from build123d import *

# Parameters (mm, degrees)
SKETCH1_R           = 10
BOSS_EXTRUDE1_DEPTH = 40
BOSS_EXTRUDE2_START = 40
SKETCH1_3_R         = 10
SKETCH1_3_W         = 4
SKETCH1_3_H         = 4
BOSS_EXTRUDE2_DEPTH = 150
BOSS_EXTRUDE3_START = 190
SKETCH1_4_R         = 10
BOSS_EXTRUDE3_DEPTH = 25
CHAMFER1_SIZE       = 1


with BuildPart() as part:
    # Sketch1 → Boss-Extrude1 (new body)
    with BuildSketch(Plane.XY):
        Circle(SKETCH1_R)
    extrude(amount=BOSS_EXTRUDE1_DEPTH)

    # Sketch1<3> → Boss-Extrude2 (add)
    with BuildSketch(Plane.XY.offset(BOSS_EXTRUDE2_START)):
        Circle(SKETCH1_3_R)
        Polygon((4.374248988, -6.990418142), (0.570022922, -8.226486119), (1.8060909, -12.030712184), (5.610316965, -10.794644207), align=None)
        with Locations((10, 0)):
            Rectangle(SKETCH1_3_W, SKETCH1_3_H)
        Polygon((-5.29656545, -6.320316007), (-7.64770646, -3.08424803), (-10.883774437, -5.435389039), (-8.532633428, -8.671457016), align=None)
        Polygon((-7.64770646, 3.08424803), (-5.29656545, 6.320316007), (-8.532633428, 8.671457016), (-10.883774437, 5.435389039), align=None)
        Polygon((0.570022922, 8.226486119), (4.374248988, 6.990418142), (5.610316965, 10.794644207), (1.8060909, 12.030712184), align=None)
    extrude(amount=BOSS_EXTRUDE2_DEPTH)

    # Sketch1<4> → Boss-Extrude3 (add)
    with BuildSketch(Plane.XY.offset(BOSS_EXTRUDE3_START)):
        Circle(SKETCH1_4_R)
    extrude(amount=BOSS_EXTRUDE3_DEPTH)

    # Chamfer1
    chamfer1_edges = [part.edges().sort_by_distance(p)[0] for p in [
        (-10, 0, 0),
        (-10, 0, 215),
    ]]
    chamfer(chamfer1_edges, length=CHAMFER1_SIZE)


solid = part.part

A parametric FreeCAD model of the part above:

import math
import FreeCAD as App
import Part
import Sketcher
Q = App.Units.Quantity


def edges_at(feature, points):
    """Names of the edges that pass closest to the given points."""
    edges = feature.Shape.Edges
    near = lambda p: min(range(len(edges)), key=lambda i: edges[i].distToShape(Part.Vertex(*p))[0])
    return sorted({f"Edge{near(p) + 1}" for p in points})

doc = App.newDocument("Part")
params = doc.addObject("Spreadsheet::Sheet", "Params")
for row, (alias, value) in enumerate([
    ("sketch1_diameter", "20 mm"),
    ("pad1_length", "40 mm"),
    ("sketch2_radius", "10 mm"),
    ("sketch2_height", "4 mm"),
    ("sketch2_length", "4 mm"),
    ("pad2_length", "150 mm"),
    ("sketch3_diameter", "20 mm"),
    ("pad3_length", "25 mm"),
    ("chamfer_size", "1 mm"),
], start=1):
    params.set(f"A{row}", alias)
    params.set(f"B{row}", "=" + value)
    params.setAlias(f"B{row}", alias)

body = doc.addObject("PartDesign::Body", "Body")

sketch1 = doc.addObject("Sketcher::SketchObject", "Sketch")
body.addObject(sketch1)
sketch1.AttachmentSupport = (doc.XY_Plane, [""])
sketch1.MapMode = "FlatFace"
sketch1.addGeometry(Part.Circle(App.Vector(0, 0, 0), App.Vector(0, 0, 1), 10), False)
sketch1.addConstraint([
    Sketcher.Constraint("Coincident", 0, 3, -1, 1),
    Sketcher.Constraint("Diameter", 0, Q("20 mm")),
])
sketch1.setExpression("Constraints[1]", "Params.sketch1_diameter")
pad1 = doc.addObject("PartDesign::Pad", "Pad")
body.addObject(pad1)
pad1.Profile = sketch1
pad1.setExpression("Length", "Params.pad1_length")

sketch2 = doc.addObject("Sketcher::SketchObject", "Sketch001")
body.addObject(sketch2)
sketch2.AttachmentSupport = (doc.XY_Plane, [""])
sketch2.MapMode = "FlatFace"
sketch2.AttachmentOffset = App.Placement(App.Vector(0, 0, 40), App.Rotation())
sketch2.addGeometry([
    Part.ArcOfCircle(Part.Circle(App.Vector(0, 0, 0), App.Vector(0, 0, 1), 10), math.radians(-132), math.radians(-84)),
    Part.LineSegment(App.Vector(1.1, -9.9, 0), App.Vector(1.8, -12, 0)),
    Part.LineSegment(App.Vector(1.8, -12, 0), App.Vector(5.6, -10.8, 0)),
    Part.LineSegment(App.Vector(5.6, -10.8, 0), App.Vector(4.9, -8.7, 0)),
    Part.ArcOfCircle(Part.Circle(App.Vector(0, 0, 0), App.Vector(0, 0, 1), 10), math.radians(-60), math.radians(-12)),
    Part.LineSegment(App.Vector(9.8, -2, 0), App.Vector(12, -2, 0)),
    Part.LineSegment(App.Vector(12, -2, 0), App.Vector(12, 2, 0)),
    Part.LineSegment(App.Vector(12, 2, 0), App.Vector(9.8, 2, 0)),
    Part.ArcOfCircle(Part.Circle(App.Vector(0, 0, 0), App.Vector(0, 0, 1), 10), math.radians(12), math.radians(60)),
    Part.LineSegment(App.Vector(4.9, 8.7, 0), App.Vector(5.6, 10.8, 0)),
    Part.LineSegment(App.Vector(5.6, 10.8, 0), App.Vector(1.8, 12, 0)),
    Part.LineSegment(App.Vector(1.8, 12, 0), App.Vector(1.1, 9.9, 0)),
    Part.ArcOfCircle(Part.Circle(App.Vector(0, 0, 0), App.Vector(0, 0, 1), 10), math.radians(84), math.radians(132)),
    Part.LineSegment(App.Vector(-6.8, 7.4, 0), App.Vector(-8.5, 8.7, 0)),
    Part.LineSegment(App.Vector(-8.5, 8.7, 0), App.Vector(-10.9, 5.4, 0)),
    Part.LineSegment(App.Vector(-10.9, 5.4, 0), App.Vector(-9.1, 4.1, 0)),
    Part.ArcOfCircle(Part.Circle(App.Vector(0, 0, 0), App.Vector(0, 0, 1), 10), math.radians(156), math.radians(204)),
    Part.LineSegment(App.Vector(-9.1, -4.1, 0), App.Vector(-10.9, -5.4, 0)),
    Part.LineSegment(App.Vector(-10.9, -5.4, 0), App.Vector(-8.5, -8.7, 0)),
    Part.LineSegment(App.Vector(-8.5, -8.7, 0), App.Vector(-6.8, -7.4, 0)),
], False)
sketch2.addConstraint([
    Sketcher.Constraint("Coincident", 0, 2, 1, 1),
    Sketcher.Constraint("Coincident", 1, 2, 2, 1),
    Sketcher.Constraint("Coincident", 2, 2, 3, 1),
    Sketcher.Constraint("Coincident", 3, 2, 4, 1),
    Sketcher.Constraint("Coincident", 4, 2, 5, 1),
    Sketcher.Constraint("Coincident", 5, 2, 6, 1),
    Sketcher.Constraint("Coincident", 6, 2, 7, 1),
    Sketcher.Constraint("Coincident", 7, 2, 8, 1),
    Sketcher.Constraint("Coincident", 8, 2, 9, 1),
    Sketcher.Constraint("Coincident", 9, 2, 10, 1),
    Sketcher.Constraint("Coincident", 10, 2, 11, 1),
    Sketcher.Constraint("Coincident", 11, 2, 12, 1),
    Sketcher.Constraint("Coincident", 12, 2, 13, 1),
    Sketcher.Constraint("Coincident", 13, 2, 14, 1),
    Sketcher.Constraint("Coincident", 14, 2, 15, 1),
    Sketcher.Constraint("Coincident", 15, 2, 16, 1),
    Sketcher.Constraint("Coincident", 16, 2, 17, 1),
    Sketcher.Constraint("Coincident", 17, 2, 18, 1),
    Sketcher.Constraint("Coincident", 18, 2, 19, 1),
    Sketcher.Constraint("Coincident", 19, 2, 0, 1),
    Sketcher.Constraint("Horizontal", 5),
    Sketcher.Constraint("Vertical", 6),
    Sketcher.Constraint("Horizontal", 7),
    Sketcher.Constraint("Coincident", 0, 3, -1, 1),
    Sketcher.Constraint("Coincident", 4, 3, -1, 1),
    Sketcher.Constraint("Coincident", 8, 3, -1, 1),
    Sketcher.Constraint("Coincident", 12, 3, -1, 1),
    Sketcher.Constraint("Coincident", 16, 3, -1, 1),
    Sketcher.Constraint("Equal", 0, 4),
    Sketcher.Constraint("Equal", 4, 8),
    Sketcher.Constraint("Equal", 8, 12),
    Sketcher.Constraint("Equal", 12, 16),
    Sketcher.Constraint("Symmetric", 2, 2, 9, 2, -1),
    Sketcher.Constraint("Symmetric", 1, 2, 10, 2, -1),
    Sketcher.Constraint("Symmetric", 14, 2, 17, 2, -1),
    Sketcher.Constraint("Symmetric", 13, 2, 18, 2, -1),
    Sketcher.Constraint("Perpendicular", 1, 2),
    Sketcher.Constraint("Perpendicular", 2, 3),
    Sketcher.Constraint("Perpendicular", 9, 10),
    Sketcher.Constraint("Perpendicular", 10, 11),
    Sketcher.Constraint("Perpendicular", 13, 14),
    Sketcher.Constraint("Perpendicular", 14, 15),
    Sketcher.Constraint("Perpendicular", 17, 18),
    Sketcher.Constraint("Perpendicular", 18, 19),
    Sketcher.Constraint("Vertical", 4, 2, 7, 2),
    Sketcher.Constraint("Equal", 1, 3),
    Sketcher.Constraint("Equal", 11, 13),
    Sketcher.Constraint("Equal", 10, 14),
    Sketcher.Constraint("Equal", 13, 15),
    Sketcher.Constraint("Radius", 0, Q("10 mm")),
    Sketcher.Constraint("DistanceY", 6, 1, 6, 2, Q("4 mm")),
    Sketcher.Constraint("Angle", 1, Q("-72 deg")),
    Sketcher.Constraint("Angle", 13, Q("144 deg")),
    Sketcher.Constraint("Distance", 2, Q("4 mm")),
    Sketcher.Constraint("DistanceX", -1, 1, 5, 2, Q("12 mm")),
    Sketcher.Constraint("Distance", 1, Q("2.202041 mm")),
])
sketch2.setExpression("Constraints[49]", "Params.sketch2_radius")
sketch2.setExpression("Constraints[50]", "Params.sketch2_height")
sketch2.setExpression("Constraints[53]", "Params.sketch2_length")
pad2 = doc.addObject("PartDesign::Pad", "Pad001")
body.addObject(pad2)
pad2.Profile = sketch2
pad2.setExpression("Length", "Params.pad2_length")

sketch3 = doc.addObject("Sketcher::SketchObject", "Sketch002")
body.addObject(sketch3)
sketch3.AttachmentSupport = (doc.XY_Plane, [""])
sketch3.MapMode = "FlatFace"
sketch3.AttachmentOffset = App.Placement(App.Vector(0, 0, 190), App.Rotation())
sketch3.addGeometry(Part.Circle(App.Vector(0, 0, 0), App.Vector(0, 0, 1), 10), False)
sketch3.addConstraint([
    Sketcher.Constraint("Coincident", 0, 3, -1, 1),
    Sketcher.Constraint("Diameter", 0, Q("20 mm")),
])
sketch3.setExpression("Constraints[1]", "Params.sketch3_diameter")
pad3 = doc.addObject("PartDesign::Pad", "Pad002")
body.addObject(pad3)
pad3.Profile = sketch3
pad3.setExpression("Length", "Params.pad3_length")
doc.recompute()

chamfer = doc.addObject("PartDesign::Chamfer", "Chamfer")
body.addObject(chamfer)
chamfer.Base = (pad3, edges_at(pad3, [(-10, 0, 0), (-10, 0, 215)]))
chamfer.setExpression("Size", "Params.chamfer_size")

doc.recompute()
